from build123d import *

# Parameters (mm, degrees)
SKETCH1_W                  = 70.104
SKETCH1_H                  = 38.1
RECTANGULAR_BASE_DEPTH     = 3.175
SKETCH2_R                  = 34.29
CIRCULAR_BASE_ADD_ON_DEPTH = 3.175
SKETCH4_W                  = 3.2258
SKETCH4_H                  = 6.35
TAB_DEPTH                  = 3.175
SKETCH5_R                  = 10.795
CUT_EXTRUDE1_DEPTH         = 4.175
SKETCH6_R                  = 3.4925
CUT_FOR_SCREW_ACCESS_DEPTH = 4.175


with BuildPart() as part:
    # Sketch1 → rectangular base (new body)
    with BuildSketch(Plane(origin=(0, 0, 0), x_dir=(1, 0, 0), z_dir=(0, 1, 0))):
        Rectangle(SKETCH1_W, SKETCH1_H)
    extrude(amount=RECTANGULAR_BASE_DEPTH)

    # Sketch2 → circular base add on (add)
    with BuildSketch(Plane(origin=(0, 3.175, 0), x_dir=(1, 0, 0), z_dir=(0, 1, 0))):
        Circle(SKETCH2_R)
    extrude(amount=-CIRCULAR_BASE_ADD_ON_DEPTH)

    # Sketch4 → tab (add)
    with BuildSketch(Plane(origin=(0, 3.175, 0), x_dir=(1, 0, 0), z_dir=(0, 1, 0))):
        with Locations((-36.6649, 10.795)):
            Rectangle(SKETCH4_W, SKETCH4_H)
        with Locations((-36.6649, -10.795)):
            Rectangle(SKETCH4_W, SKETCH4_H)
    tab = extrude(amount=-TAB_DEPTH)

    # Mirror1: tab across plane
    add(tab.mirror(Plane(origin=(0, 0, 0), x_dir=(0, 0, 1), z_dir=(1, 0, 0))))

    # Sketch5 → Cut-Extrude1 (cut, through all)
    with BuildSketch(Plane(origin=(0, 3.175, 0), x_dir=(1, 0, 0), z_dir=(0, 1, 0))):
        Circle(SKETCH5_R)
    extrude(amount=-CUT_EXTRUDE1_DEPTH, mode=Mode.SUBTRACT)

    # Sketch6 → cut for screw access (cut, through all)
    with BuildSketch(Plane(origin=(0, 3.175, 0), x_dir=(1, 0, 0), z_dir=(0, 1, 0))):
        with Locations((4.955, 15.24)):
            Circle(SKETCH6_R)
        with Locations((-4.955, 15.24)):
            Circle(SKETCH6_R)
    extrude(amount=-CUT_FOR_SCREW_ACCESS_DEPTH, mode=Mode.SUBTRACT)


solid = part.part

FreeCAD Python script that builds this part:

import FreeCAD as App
import Part
import Sketcher
Q = App.Units.Quantity


def add_polygon(sketch, points):
    """Adds a closed chain of lines whose ends are joined by coincident constraints."""
    first, n = sketch.GeometryCount, len(points)
    for a, b in zip(points, points[1:] + points[:1]):
        sketch.addGeometry(Part.LineSegment(App.Vector(*a, 0), App.Vector(*b, 0)), False)
    for i in range(n):
        sketch.addConstraint(Sketcher.Constraint("Coincident", first + i, 2, first + (i + 1) % n, 1))

doc = App.newDocument("Part")
body = doc.addObject("PartDesign::Body", "Body")

sketch1 = body.newObject("Sketcher::SketchObject", "Sketch")
sketch1.AttachmentSupport = (doc.getObject("XZ_Plane"), [""])
sketch1.MapMode = "FlatFace"
add_polygon(sketch1, [(-35, -19), (-35, 19), (35, 19), (35, -19)])
sketch1.addConstraint([
    Sketcher.Constraint("Vertical", 0),
    Sketcher.Constraint("Horizontal", 1),
    Sketcher.Constraint("Vertical", 2),
    Sketcher.Constraint("Horizontal", 3),
    Sketcher.Constraint("Symmetric", 0, 2, 2, 2, -1, 1),
    Sketcher.Constraint("DistanceY", 0, 1, 0, 2, Q("1.5 in")),
    Sketcher.Constraint("DistanceX", 1, 1, 1, 2, Q("2.76 in")),
])
pad1 = body.newObject("PartDesign::Pad", "Pad")
pad1.Profile = sketch1
pad1.Length = Q("0.125 in")
pad1.Reversed = True

sketch2 = body.newObject("Sketcher::SketchObject", "Sketch001")
sketch2.AttachmentSupport = (doc.getObject("XZ_Plane"), [""])
sketch2.MapMode = "FlatFace"
sketch2.AttachmentOffset = App.Placement(App.Vector(0, 0, -0.125 * 25.4), App.Rotation())
sketch2.addGeometry(Part.Circle(App.Vector(0, 0, 0), App.Vector(0, 0, 1), 34), False)
sketch2.addConstraint([
    Sketcher.Constraint("Coincident", 0, 3, -1, 1),
    Sketcher.Constraint("Diameter", 0, Q("2.7 in")),
])
pad2 = body.newObject("PartDesign::Pad", "Pad001")
pad2.Profile = sketch2
pad2.Length = Q("0.125 in")

sketch3 = body.newObject("Sketcher::SketchObject", "Sketch002")
sketch3.AttachmentSupport = (doc.getObject("XZ_Plane"), [""])
sketch3.MapMode = "FlatFace"
sketch3.AttachmentOffset = App.Placement(App.Vector(0, 0, -0.125 * 25.4), App.Rotation())
add_polygon(sketch3, [(-38.3, -14), (-38.3, -7.6), (-35.1, -7.6), (-35.1, -14)])
add_polygon(sketch3, [(-38.3, 7.6), (-38.3, 14), (-35.1, 14), (-35.1, 7.6)])
sketch3.addConstraint([
    Sketcher.Constraint("Vertical", 0),
    Sketcher.Constraint("Horizontal", 1),
    Sketcher.Constraint("Vertical", 2),
    Sketcher.Constraint("Horizontal", 3),
    Sketcher.Constraint("Vertical", 4),
    Sketcher.Constraint("Horizontal", 5),
    Sketcher.Constraint("Vertical", 6),
    Sketcher.Constraint("Horizontal", 7),
    Sketcher.Constraint("Symmetric", 3, 2, 4, 2, -1),
    Sketcher.Constraint("Symmetric", 1, 2, 6, 2, -1),
    Sketcher.Constraint("DistanceY", 0, 1, 0, 2, Q("0.25 in")),
    Sketcher.Constraint("DistanceY", 0, 2, -1, 1, Q("0.3 in")),
    Sketcher.Constraint("DistanceX", 1, 1, 1, 2, Q("0.127 in")),
    Sketcher.Constraint("DistanceX", 1, 2, -1, 1, Q("1.38 in")),
])
pad3 = body.newObject("PartDesign::Pad", "Pad002")
pad3.Profile = sketch3
pad3.Length = Q("0.125 in")
doc.recompute()

mirrored = body.newObject("PartDesign::Mirrored", "Mirrored")
mirrored.Originals = [pad3]
mirrored.MirrorPlane = (doc.getObject("YZ_Plane"), [""])
body.Tip = mirrored

sketch4 = body.newObject("Sketcher::SketchObject", "Sketch003")
sketch4.AttachmentSupport = (doc.getObject("XZ_Plane"), [""])
sketch4.MapMode = "FlatFace"
sketch4.AttachmentOffset = App.Placement(App.Vector(0, 0, -0.125 * 25.4), App.Rotation())
sketch4.addGeometry(Part.Circle(App.Vector(0, 0, 0), App.Vector(0, 0, 1), 11), False)
sketch4.addConstraint([
    Sketcher.Constraint("Coincident", 0, 3, -1, 1),
    Sketcher.Constraint("Diameter", 0, Q("0.85 in")),
])
pocket1 = body.newObject("PartDesign::Pocket", "Pocket")
pocket1.Profile = sketch4
pocket1.Type = "ThroughAll"
pocket1.Reversed = True

sketch5 = body.newObject("Sketcher::SketchObject", "Sketch004")
sketch5.AttachmentSupport = (doc.getObject("XZ_Plane"), [""])
sketch5.MapMode = "FlatFace"
sketch5.AttachmentOffset = App.Placement(App.Vector(0, 0, -0.125 * 25.4), App.Rotation())
sketch5.addGeometry([
    Part.Circle(App.Vector(5, -15.2, 0), App.Vector(0, 0, 1), 3.5),
    Part.Circle(App.Vector(-5, -15.2, 0), App.Vector(0, 0, 1), 3.5),
], False)
sketch5.addConstraint([
    Sketcher.Constraint("Equal", 0, 1),
    Sketcher.Constraint("Symmetric", 0, 3, 1, 3, -2),
    Sketcher.Constraint("Diameter", 0, Q("0.275 in")),
    Sketcher.Constraint("DistanceY", 0, 3, -1, 1, Q("0.6 in")),
    Sketcher.Constraint("DistanceX", -1, 1, 0, 3, 4.955),
])
pocket2 = body.newObject("PartDesign::Pocket", "Pocket001")
pocket2.Profile = sketch5
pocket2.Type = "ThroughAll"
pocket2.Reversed = True

doc.recompute()
